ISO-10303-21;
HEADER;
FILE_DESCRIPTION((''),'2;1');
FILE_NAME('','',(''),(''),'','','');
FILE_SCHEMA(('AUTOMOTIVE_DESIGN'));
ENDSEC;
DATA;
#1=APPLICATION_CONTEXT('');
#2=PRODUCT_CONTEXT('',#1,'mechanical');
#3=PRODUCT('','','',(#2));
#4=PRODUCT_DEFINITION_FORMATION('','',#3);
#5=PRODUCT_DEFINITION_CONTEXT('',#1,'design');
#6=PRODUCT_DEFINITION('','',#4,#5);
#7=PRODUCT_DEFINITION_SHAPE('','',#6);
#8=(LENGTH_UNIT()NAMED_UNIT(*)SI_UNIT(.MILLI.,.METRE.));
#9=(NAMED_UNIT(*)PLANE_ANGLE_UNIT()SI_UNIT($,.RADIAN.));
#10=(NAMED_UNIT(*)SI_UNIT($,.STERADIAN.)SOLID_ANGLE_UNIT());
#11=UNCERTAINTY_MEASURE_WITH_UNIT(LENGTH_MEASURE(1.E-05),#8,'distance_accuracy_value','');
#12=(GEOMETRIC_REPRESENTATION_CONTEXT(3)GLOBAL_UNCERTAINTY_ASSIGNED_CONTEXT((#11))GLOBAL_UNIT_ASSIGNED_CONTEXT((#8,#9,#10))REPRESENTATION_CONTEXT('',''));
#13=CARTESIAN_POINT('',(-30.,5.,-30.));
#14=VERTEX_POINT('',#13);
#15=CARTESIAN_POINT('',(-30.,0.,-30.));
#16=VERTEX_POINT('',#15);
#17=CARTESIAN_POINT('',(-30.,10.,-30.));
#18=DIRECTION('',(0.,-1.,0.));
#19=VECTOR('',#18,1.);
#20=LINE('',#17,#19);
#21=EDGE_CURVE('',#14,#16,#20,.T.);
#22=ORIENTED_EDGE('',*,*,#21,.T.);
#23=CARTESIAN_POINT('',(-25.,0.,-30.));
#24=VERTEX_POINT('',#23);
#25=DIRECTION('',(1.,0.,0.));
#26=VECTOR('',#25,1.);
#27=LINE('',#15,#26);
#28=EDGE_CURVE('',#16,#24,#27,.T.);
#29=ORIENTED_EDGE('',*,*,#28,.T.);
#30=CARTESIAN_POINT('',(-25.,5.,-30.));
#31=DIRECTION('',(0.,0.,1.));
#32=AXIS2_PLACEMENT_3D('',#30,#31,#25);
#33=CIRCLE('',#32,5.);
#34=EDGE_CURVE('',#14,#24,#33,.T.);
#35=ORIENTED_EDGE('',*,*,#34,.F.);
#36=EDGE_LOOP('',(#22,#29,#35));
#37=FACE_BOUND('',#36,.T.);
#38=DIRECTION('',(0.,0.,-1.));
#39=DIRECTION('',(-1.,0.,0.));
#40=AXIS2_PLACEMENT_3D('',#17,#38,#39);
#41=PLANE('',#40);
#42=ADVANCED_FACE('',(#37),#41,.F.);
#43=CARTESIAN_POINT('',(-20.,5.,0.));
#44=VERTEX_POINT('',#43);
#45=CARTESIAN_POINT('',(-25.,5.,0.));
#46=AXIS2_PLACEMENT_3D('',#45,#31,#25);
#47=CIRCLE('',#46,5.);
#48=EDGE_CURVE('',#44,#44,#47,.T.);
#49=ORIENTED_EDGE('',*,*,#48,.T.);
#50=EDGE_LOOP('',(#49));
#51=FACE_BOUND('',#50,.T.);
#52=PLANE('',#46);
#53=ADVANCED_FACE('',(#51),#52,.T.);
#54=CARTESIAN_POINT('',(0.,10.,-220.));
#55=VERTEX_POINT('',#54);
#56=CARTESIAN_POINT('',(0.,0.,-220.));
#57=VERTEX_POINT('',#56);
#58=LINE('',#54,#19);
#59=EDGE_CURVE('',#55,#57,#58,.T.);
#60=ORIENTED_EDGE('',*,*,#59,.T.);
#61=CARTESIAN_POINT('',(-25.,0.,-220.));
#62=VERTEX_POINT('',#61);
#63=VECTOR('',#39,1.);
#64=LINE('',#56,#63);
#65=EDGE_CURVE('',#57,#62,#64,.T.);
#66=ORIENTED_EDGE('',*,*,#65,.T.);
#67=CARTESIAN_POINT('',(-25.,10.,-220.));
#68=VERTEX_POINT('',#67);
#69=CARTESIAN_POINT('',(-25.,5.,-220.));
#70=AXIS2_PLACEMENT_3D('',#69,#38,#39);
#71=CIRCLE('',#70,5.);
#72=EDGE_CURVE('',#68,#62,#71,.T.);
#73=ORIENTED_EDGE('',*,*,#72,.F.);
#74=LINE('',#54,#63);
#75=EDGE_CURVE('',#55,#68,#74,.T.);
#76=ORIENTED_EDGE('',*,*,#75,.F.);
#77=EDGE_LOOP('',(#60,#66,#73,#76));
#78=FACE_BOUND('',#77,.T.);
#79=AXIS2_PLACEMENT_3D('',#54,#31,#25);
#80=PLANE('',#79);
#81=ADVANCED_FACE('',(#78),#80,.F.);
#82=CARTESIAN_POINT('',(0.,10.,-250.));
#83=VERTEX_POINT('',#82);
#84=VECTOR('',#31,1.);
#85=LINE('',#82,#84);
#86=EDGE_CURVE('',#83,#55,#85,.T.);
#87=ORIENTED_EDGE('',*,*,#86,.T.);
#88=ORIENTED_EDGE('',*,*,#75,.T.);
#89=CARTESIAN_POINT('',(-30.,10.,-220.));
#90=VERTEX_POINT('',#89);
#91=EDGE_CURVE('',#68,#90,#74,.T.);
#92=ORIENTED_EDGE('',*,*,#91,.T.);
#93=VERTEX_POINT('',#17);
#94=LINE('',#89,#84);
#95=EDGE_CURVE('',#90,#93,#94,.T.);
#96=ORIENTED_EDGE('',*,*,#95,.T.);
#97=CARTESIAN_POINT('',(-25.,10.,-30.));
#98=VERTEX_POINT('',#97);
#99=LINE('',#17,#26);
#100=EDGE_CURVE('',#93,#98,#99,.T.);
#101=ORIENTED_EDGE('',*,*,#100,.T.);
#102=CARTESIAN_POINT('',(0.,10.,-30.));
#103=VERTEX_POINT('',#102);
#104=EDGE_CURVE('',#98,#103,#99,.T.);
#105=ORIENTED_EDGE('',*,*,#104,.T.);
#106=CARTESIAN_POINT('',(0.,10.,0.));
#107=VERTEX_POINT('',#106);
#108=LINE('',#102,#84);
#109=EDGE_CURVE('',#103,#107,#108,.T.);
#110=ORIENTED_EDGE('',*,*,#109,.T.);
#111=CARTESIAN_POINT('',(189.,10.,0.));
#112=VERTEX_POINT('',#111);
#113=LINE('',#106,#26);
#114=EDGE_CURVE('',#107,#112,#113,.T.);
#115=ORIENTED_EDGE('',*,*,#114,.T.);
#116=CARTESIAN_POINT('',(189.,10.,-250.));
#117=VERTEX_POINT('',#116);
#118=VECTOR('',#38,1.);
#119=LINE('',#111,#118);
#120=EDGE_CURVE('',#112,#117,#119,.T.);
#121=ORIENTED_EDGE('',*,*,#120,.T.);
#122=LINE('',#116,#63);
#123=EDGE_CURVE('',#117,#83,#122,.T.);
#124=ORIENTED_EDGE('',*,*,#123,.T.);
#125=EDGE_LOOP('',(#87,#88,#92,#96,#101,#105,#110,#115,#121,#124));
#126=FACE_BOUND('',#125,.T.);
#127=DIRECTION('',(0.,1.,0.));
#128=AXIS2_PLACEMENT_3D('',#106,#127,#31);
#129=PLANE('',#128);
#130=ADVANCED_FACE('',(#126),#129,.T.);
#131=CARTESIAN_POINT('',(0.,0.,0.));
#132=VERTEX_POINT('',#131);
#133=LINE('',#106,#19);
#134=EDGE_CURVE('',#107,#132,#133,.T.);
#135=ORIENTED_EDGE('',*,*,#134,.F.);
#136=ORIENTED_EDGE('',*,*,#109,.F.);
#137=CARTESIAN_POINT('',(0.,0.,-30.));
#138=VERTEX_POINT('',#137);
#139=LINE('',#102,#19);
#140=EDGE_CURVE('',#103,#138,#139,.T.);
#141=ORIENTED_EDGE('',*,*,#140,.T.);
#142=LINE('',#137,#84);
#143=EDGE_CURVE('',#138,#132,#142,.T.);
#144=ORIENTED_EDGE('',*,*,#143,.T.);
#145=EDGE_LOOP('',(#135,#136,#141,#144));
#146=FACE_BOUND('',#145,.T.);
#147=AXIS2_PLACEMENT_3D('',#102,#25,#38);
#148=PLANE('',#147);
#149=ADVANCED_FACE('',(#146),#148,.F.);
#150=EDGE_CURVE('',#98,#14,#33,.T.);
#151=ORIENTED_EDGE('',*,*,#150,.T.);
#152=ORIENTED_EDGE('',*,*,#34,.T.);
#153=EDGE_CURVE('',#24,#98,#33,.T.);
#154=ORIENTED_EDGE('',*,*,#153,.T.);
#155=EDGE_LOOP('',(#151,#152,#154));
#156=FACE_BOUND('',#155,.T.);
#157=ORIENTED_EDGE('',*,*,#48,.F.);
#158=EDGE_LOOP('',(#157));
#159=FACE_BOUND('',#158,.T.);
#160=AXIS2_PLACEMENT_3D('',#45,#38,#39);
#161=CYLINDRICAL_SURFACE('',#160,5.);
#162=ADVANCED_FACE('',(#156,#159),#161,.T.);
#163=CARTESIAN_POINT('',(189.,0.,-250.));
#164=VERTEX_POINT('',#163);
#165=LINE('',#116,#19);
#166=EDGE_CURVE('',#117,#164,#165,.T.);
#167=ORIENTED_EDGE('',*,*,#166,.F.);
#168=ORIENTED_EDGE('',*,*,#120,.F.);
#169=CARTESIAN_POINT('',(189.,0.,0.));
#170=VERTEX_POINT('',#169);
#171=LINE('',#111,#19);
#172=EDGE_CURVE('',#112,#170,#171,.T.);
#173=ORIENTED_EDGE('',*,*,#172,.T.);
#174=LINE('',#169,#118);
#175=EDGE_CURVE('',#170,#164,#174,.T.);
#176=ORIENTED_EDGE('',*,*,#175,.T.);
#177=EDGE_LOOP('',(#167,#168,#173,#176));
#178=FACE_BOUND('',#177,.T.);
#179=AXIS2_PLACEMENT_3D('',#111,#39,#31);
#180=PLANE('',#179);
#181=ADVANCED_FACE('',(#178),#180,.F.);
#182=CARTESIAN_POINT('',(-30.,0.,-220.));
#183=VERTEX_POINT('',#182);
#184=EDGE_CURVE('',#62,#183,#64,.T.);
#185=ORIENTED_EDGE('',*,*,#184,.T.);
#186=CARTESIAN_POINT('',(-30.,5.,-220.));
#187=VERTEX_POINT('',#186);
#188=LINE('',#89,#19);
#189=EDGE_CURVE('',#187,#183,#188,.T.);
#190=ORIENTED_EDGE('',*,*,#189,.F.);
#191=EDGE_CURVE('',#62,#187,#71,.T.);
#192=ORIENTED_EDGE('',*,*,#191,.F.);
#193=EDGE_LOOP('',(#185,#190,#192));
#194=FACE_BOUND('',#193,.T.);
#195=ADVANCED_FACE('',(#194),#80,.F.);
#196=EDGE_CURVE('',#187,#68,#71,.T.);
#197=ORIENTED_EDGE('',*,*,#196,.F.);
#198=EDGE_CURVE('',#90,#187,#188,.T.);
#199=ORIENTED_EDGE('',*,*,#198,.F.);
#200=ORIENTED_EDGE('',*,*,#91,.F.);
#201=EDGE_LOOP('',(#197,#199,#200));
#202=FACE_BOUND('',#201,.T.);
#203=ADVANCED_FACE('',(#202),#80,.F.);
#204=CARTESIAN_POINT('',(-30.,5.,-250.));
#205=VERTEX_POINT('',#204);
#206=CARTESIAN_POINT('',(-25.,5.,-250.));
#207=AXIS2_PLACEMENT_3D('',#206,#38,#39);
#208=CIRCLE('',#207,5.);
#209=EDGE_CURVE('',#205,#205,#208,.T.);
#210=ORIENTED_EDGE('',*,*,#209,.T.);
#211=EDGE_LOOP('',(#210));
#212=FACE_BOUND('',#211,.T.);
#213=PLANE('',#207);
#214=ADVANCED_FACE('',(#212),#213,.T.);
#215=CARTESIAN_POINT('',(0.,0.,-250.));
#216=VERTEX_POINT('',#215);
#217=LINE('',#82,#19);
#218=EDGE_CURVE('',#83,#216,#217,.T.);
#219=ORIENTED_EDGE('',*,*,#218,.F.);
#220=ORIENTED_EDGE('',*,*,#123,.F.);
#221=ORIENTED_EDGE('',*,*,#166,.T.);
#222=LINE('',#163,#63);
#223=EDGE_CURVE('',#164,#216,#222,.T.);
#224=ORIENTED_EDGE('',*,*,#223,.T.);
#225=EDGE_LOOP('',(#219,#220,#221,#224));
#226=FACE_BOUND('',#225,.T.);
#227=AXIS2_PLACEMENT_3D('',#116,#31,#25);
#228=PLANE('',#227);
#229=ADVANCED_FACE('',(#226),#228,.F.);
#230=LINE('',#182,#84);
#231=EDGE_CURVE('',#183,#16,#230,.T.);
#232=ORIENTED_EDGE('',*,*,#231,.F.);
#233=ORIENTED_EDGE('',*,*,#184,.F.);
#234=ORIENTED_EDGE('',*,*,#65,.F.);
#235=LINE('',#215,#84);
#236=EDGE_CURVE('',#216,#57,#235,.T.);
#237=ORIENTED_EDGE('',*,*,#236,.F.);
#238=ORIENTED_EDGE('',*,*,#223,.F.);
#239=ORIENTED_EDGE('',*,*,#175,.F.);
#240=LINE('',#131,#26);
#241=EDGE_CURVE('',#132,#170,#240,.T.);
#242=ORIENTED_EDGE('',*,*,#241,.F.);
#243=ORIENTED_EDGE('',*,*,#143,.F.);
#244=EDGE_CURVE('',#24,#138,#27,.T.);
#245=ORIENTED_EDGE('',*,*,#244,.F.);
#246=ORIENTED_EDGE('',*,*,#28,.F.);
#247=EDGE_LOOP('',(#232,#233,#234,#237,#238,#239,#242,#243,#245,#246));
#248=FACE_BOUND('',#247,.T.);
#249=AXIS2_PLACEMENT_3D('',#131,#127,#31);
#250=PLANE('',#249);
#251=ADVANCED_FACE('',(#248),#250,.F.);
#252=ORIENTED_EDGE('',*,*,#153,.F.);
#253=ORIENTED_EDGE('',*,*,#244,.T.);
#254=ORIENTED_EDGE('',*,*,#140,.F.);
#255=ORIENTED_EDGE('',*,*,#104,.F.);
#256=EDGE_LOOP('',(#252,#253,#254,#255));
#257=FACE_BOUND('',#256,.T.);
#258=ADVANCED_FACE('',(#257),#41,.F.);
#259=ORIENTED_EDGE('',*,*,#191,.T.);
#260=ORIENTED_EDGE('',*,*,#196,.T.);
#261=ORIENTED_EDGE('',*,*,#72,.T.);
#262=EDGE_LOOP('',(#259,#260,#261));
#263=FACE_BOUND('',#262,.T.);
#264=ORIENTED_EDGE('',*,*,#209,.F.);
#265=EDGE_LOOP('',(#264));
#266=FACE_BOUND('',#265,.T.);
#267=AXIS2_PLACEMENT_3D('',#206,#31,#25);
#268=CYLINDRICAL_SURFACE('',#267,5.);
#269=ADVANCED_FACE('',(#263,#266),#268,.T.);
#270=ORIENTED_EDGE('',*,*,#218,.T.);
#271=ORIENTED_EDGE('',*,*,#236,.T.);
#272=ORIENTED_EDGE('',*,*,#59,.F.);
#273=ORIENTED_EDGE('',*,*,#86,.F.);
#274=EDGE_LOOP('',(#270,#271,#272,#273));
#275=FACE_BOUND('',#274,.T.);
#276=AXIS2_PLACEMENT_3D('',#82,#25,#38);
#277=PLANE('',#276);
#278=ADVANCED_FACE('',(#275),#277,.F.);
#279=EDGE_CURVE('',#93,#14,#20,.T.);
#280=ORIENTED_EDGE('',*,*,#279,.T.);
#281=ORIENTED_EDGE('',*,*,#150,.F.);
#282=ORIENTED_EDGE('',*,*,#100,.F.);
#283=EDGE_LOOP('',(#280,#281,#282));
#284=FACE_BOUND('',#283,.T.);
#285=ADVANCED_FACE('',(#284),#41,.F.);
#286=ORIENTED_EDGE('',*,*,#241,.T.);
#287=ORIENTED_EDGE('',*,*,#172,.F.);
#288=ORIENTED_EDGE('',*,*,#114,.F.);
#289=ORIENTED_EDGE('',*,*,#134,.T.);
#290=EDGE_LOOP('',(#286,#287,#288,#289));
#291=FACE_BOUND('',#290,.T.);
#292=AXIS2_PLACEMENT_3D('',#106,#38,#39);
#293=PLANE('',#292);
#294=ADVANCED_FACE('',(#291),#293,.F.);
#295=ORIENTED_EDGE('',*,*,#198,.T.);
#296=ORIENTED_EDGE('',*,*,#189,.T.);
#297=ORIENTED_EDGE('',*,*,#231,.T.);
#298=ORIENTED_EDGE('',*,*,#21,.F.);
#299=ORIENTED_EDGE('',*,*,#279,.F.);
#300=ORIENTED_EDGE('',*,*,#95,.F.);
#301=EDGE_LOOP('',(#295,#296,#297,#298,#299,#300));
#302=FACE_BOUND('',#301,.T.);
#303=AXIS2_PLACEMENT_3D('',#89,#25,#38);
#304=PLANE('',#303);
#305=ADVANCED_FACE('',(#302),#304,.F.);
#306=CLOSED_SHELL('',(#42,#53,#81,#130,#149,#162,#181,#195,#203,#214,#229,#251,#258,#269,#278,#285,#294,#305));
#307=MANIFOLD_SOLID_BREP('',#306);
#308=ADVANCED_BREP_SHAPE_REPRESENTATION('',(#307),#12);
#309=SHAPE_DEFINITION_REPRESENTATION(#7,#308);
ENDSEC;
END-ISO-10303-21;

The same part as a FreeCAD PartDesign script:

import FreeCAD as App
import Part
import Sketcher
from FreeCAD import Vector


def add_polygon(sketch, points):
    """Adds a closed chain of lines whose ends are joined by coincident constraints."""
    first, n = sketch.GeometryCount, len(points)
    for a, b in zip(points, points[1:] + points[:1]):
        sketch.addGeometry(Part.LineSegment(App.Vector(*a, 0), App.Vector(*b, 0)), False)
    for i in range(n):
        sketch.addConstraint(Sketcher.Constraint("Coincident", first + i, 2, first + (i + 1) % n, 1))

doc = App.newDocument("Part")
body = doc.addObject("PartDesign::Body", "Body")

sketch1 = doc.addObject("Sketcher::SketchObject", "Sketch")
body.addObject(sketch1)
sketch1.AttachmentSupport = (doc.XZ_Plane, [""])
sketch1.MapMode = "FlatFace"
add_polygon(sketch1, [(0, 0), (189, 0), (189, -250), (0, -250), (0, -220), (-30, -220), (-30, -30), (0, -30)])
sketch1.addConstraint(Sketcher.Constraint("Horizontal", 0))
sketch1.addConstraint(Sketcher.Constraint("Vertical", 1))
sketch1.addConstraint(Sketcher.Constraint("Horizontal", 2))
sketch1.addConstraint(Sketcher.Constraint("Vertical", 3))
sketch1.addConstraint(Sketcher.Constraint("Horizontal", 4))
sketch1.addConstraint(Sketcher.Constraint("Vertical", 5))
sketch1.addConstraint(Sketcher.Constraint("Horizontal", 6))
sketch1.addConstraint(Sketcher.Constraint("Vertical", 7))
sketch1.addConstraint(Sketcher.Constraint("Coincident", 7, 2, -1, 1))
sketch1.addConstraint(Sketcher.Constraint("PointOnObject", 2, 2, -2))
sketch1.addConstraint(Sketcher.Constraint("Equal", 6, 3))
sketch1.addConstraint(Sketcher.Constraint("Equal", 3, 7))
sketch1.addConstraint(Sketcher.Constraint("DistanceX", 0, 1, 0, 2, 189.0))
sketch1.addConstraint(Sketcher.Constraint("DistanceX", 4, 2, 4, 1, 30.0))
sketch1.addConstraint(Sketcher.Constraint("DistanceY", 1, 2, 1, 1, 250.0))
pad1 = doc.addObject("PartDesign::Pad", "Pad")
body.addObject(pad1)
pad1.Profile = sketch1
pad1.Length = 10
pad1.Reversed = True

sketch2 = doc.addObject("Sketcher::SketchObject", "Sketch001")
body.addObject(sketch2)
sketch2.AttachmentSupport = (doc.XY_Plane, [""])
sketch2.MapMode = "FlatFace"
sketch2.AttachmentOffset = App.Placement(Vector(0, 0, -30), App.Rotation())
sketch2.addGeometry(Part.Circle(Vector(-25, 5, 0), Vector(0, 0, 1), 5), False)
sketch2.addConstraint(Sketcher.Constraint("Diameter", 0, 10.0))
sketch2.addConstraint(Sketcher.Constraint("DistanceX", 0, 3, -1, 1, 25.0))
sketch2.addConstraint(Sketcher.Constraint("DistanceY", -1, 1, 0, 3, 5.0))
pad2 = doc.addObject("PartDesign::Pad", "Pad001")
body.addObject(pad2)
pad2.Profile = sketch2
pad2.Length = 30

sketch3 = doc.addObject("Sketcher::SketchObject", "Sketch002")
body.addObject(sketch3)
sketch3.AttachmentSupport = (doc.XY_Plane, [""])
sketch3.MapMode = "FlatFace"
sketch3.AttachmentOffset = App.Placement(Vector(0, 0, -220), App.Rotation())
sketch3.addGeometry(Part.Circle(Vector(-25, 5, 0), Vector(0, 0, 1), 5), False)
sketch3.addConstraint(Sketcher.Constraint("Diameter", 0, 10.0))
sketch3.addConstraint(Sketcher.Constraint("DistanceX", 0, 3, -1, 1, 25.0))
sketch3.addConstraint(Sketcher.Constraint("DistanceY", -1, 1, 0, 3, 5.0))
pad3 = doc.addObject("PartDesign::Pad", "Pad002")
body.addObject(pad3)
pad3.Profile = sketch3
pad3.Length = 30
pad3.Reversed = True

doc.recompute()
